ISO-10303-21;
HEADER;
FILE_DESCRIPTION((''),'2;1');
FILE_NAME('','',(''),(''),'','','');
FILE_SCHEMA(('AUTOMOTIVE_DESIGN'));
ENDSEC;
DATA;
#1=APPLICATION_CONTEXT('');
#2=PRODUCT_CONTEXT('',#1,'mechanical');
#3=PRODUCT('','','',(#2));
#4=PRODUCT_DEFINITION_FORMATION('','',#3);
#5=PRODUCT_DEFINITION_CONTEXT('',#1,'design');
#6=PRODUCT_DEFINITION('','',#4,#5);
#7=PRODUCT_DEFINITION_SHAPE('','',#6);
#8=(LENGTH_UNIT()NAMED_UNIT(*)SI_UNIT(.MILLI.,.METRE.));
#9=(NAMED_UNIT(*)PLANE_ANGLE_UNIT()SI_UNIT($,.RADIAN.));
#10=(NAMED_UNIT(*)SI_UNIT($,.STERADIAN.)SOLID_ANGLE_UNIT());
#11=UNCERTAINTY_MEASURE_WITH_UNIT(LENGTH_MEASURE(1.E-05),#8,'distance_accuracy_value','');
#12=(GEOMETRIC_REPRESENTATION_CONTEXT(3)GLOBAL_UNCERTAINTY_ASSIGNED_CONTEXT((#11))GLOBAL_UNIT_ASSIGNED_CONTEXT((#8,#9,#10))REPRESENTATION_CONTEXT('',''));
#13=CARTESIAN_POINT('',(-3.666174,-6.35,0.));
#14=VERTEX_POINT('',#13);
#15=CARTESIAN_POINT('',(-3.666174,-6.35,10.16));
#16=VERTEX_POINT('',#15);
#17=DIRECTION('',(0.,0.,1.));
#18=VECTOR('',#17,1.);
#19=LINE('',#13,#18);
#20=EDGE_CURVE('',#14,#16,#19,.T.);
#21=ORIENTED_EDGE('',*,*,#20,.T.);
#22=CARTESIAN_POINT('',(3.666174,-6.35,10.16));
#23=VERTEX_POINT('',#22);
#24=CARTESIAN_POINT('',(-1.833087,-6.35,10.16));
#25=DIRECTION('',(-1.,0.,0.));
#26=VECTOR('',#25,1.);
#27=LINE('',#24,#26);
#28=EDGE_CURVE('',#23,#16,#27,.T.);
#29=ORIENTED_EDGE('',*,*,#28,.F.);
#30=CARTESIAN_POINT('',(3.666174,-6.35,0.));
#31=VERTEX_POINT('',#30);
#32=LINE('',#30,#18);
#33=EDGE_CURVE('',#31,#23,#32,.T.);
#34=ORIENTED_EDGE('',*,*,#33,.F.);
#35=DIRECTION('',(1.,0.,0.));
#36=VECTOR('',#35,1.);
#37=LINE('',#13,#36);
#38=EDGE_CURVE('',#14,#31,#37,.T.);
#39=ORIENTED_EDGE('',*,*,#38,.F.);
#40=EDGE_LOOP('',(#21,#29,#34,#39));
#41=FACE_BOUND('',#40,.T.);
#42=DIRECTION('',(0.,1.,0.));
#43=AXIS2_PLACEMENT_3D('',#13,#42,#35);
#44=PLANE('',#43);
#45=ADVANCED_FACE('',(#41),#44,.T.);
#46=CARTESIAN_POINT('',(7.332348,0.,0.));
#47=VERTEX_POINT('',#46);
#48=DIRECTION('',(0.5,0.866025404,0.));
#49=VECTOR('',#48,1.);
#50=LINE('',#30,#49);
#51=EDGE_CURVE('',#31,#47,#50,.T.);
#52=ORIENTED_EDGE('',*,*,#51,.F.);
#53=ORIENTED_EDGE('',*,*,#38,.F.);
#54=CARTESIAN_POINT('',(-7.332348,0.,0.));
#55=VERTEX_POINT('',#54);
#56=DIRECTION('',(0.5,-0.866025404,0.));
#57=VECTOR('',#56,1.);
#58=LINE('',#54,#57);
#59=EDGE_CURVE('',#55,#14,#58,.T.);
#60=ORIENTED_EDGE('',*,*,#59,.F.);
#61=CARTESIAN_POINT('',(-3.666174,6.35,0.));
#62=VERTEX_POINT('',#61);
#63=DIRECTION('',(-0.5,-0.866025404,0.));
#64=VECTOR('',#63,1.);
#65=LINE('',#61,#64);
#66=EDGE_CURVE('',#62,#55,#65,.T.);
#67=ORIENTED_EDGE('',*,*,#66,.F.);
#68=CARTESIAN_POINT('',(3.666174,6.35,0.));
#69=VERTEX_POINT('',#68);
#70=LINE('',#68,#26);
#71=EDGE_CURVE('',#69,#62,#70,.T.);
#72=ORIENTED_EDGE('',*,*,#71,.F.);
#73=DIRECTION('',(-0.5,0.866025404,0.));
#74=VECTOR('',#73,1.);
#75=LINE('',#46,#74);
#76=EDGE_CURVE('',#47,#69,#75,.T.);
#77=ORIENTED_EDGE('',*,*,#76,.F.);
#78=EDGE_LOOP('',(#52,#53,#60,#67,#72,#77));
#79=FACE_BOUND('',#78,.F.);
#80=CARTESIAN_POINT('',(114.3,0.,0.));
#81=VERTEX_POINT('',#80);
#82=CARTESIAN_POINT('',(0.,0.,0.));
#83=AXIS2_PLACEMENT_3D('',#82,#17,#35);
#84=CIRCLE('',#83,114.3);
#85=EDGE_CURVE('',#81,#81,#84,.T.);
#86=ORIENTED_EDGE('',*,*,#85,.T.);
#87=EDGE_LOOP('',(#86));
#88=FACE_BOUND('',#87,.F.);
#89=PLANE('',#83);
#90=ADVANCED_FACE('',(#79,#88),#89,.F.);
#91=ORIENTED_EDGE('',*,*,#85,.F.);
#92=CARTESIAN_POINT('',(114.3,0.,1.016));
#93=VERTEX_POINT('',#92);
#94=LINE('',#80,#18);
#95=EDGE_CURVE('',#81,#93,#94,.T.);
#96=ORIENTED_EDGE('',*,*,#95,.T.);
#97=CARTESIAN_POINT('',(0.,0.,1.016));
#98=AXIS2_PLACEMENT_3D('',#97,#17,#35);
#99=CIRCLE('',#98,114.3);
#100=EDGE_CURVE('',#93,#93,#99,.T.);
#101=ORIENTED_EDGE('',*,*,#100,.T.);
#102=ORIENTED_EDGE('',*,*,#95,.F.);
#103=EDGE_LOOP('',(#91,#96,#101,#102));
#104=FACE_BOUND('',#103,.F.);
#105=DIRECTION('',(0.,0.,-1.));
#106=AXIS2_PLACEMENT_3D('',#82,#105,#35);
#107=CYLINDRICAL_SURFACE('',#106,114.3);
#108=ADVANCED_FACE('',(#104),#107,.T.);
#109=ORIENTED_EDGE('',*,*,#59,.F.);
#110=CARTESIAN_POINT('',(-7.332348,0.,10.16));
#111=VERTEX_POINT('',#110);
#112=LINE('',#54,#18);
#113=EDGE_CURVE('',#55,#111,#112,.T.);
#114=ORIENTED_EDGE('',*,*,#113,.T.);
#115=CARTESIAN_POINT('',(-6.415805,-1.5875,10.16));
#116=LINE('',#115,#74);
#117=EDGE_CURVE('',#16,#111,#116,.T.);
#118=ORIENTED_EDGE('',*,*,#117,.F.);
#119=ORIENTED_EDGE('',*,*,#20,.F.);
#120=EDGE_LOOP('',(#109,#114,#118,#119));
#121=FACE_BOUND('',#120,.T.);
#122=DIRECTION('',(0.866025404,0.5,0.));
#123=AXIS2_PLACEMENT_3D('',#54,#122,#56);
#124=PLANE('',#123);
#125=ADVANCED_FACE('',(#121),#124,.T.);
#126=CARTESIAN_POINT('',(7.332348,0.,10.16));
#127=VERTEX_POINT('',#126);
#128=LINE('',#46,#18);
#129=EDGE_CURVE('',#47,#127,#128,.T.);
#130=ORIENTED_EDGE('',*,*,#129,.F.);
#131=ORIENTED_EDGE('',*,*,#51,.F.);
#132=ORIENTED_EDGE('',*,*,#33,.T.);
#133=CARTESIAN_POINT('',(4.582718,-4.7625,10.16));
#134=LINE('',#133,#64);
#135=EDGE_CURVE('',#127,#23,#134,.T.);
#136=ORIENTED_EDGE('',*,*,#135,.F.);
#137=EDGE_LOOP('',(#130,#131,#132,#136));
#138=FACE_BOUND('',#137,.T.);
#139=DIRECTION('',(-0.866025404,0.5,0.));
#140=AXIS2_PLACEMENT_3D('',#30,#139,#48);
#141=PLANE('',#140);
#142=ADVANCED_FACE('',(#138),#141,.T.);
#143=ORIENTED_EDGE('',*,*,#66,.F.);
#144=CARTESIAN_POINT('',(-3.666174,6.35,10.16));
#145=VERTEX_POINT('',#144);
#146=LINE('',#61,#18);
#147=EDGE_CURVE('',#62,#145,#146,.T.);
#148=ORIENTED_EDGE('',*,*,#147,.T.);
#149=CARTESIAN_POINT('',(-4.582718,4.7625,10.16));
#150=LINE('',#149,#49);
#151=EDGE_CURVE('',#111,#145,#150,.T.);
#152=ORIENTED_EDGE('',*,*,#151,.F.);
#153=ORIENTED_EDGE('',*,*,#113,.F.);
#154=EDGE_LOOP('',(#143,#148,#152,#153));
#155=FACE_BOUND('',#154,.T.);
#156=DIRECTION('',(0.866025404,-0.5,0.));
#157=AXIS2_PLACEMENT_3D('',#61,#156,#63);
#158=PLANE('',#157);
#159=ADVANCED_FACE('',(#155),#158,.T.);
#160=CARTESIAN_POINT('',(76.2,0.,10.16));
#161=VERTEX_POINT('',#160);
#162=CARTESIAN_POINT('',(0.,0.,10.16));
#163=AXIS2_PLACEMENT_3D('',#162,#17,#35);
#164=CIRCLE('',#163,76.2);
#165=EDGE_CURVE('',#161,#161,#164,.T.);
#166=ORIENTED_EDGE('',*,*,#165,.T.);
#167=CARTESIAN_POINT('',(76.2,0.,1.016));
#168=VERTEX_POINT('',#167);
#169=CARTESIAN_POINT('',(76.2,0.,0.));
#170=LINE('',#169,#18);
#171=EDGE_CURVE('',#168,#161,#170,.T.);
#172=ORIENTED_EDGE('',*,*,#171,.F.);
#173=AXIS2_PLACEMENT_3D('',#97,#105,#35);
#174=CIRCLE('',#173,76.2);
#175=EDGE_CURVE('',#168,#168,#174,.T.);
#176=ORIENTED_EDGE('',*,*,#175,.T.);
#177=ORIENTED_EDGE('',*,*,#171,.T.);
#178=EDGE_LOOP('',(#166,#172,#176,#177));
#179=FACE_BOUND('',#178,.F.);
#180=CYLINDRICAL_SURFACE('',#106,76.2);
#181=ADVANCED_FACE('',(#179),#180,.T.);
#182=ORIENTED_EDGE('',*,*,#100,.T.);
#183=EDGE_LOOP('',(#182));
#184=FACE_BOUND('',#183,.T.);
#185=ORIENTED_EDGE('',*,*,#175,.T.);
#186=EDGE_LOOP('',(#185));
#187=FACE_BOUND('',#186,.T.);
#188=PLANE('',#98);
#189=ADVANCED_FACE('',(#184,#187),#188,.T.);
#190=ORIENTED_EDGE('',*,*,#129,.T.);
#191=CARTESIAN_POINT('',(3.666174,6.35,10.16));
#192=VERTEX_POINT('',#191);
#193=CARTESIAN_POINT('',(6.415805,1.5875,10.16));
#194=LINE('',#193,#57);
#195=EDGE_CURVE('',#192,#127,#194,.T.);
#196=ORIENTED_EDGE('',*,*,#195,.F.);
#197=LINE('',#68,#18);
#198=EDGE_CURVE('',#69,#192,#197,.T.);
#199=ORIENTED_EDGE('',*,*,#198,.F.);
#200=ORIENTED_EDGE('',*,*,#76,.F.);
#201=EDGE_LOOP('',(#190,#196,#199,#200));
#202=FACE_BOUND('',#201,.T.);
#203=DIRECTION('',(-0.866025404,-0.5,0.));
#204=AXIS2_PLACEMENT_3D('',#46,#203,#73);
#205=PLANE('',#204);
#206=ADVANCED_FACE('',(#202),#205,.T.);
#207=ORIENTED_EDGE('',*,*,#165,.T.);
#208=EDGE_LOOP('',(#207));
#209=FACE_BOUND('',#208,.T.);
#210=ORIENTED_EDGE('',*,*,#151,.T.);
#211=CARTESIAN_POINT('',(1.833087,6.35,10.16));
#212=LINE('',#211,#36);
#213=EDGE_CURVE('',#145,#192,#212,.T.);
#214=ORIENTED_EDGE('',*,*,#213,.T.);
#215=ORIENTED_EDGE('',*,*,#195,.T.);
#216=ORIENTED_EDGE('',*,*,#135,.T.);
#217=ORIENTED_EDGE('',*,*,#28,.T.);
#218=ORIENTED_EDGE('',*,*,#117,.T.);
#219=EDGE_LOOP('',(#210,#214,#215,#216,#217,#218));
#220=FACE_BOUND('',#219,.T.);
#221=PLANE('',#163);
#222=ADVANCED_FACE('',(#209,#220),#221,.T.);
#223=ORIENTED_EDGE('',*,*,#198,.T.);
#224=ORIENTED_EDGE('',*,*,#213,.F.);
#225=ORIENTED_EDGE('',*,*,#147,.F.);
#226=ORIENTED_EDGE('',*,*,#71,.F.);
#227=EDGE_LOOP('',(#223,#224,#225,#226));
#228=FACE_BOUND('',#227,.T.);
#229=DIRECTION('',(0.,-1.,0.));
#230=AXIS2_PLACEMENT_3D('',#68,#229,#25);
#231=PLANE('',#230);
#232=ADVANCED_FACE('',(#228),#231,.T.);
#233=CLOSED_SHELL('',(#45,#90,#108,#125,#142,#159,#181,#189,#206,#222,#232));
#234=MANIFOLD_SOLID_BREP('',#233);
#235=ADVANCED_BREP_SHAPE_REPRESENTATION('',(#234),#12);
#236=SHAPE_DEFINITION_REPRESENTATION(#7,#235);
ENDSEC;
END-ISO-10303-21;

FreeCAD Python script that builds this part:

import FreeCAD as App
import Part
import Sketcher
Q = App.Units.Quantity


def add_polygon(sketch, points):
    """Adds a closed chain of lines whose ends are joined by coincident constraints."""
    first, n = sketch.GeometryCount, len(points)
    for a, b in zip(points, points[1:] + points[:1]):
        sketch.addGeometry(Part.LineSegment(App.Vector(*a, 0), App.Vector(*b, 0)), False)
    for i in range(n):
        sketch.addConstraint(Sketcher.Constraint("Coincident", first + i, 2, first + (i + 1) % n, 1))

doc = App.newDocument("Part")
params = doc.addObject("Spreadsheet::Sheet", "Params")
for row, (alias, value) in enumerate([
    ("sketch1_diameter", "9 in"),
    ("pad1_length", "0.04 in"),
    ("sketch2_diameter", "6 in"),
    ("pad2_length", "0.4 in"),
    ("pocket1_length", "1 in"),
], start=1):
    params.set(f"A{row}", alias)
    params.set(f"B{row}", "=" + value)
    params.setAlias(f"B{row}", alias)

body = doc.addObject("PartDesign::Body", "Body")

# Sketch on XY plane
sketch1 = body.newObject("Sketcher::SketchObject", "Sketch")
sketch1.AttachmentSupport = (doc.getObject("XY_Plane"), [""])
sketch1.MapMode = "FlatFace"
sketch1.addGeometry(Part.Circle(App.Vector(0, 0, 0), App.Vector(0, 0, 1), 114.3), False)
sketch1.addConstraint([
    Sketcher.Constraint("Coincident", 0, 3, -1, 1),
    Sketcher.Constraint("Diameter", 0, Q("9 in")),
])
sketch1.setExpression("Constraints[1]", "Params.sketch1_diameter")
pad1 = body.newObject("PartDesign::Pad", "Pad")
pad1.Profile = sketch1
pad1.setExpression("Length", "Params.pad1_length")

# Sketch on XY plane
sketch2 = body.newObject("Sketcher::SketchObject", "Sketch001")
sketch2.AttachmentSupport = (doc.getObject("XY_Plane"), [""])
sketch2.MapMode = "FlatFace"
sketch2.addGeometry(Part.Circle(App.Vector(0, 0, 0), App.Vector(0, 0, 1), 76.2), False)
sketch2.addConstraint([
    Sketcher.Constraint("Coincident", 0, 3, -1, 1),
    Sketcher.Constraint("Diameter", 0, Q("6 in")),
])
sketch2.setExpression("Constraints[1]", "Params.sketch2_diameter")
pad2 = body.newObject("PartDesign::Pad", "Pad001")
pad2.Profile = sketch2
pad2.setExpression("Length", "Params.pad2_length")

# Sketch on XY plane
sketch3 = body.newObject("Sketcher::SketchObject", "Sketch002")
sketch3.AttachmentSupport = (doc.getObject("XY_Plane"), [""])
sketch3.MapMode = "FlatFace"
add_polygon(sketch3, [(7.332348, 0), (3.666174, 6.35), (-3.666174, 6.35), (-7.332348, 0), (-3.666174, -6.35), (3.666174, -6.35)])  # lines 0-5
sketch3.addConstraint([
    Sketcher.Constraint("Horizontal", 1),
    Sketcher.Constraint("Horizontal", 4),
    Sketcher.Constraint("Symmetric", 0, 2, 3, 2, -1, 1),
    Sketcher.Constraint("Symmetric", 2, 2, 5, 2, -1, 1),
    Sketcher.Constraint("PointOnObject", 2, 2, -1),
    Sketcher.Constraint("Parallel", 2, 5),
    Sketcher.Constraint("Vertical", 1, 2, 3, 2),
    Sketcher.Constraint("Angle", 0, Q("120 deg")),
    Sketcher.Constraint("DistanceY", 3, 2, 1, 2, Q("0.5 in")),
    Sketcher.Constraint("DistanceX", 1, 2, 1, 1, Q("7.332348 mm")),
])
pocket1 = body.newObject("PartDesign::Pocket", "Pocket")
pocket1.Profile = sketch3
pocket1.setExpression("Length", "Params.pocket1_length")
pocket1.Reversed = True

doc.recompute()
